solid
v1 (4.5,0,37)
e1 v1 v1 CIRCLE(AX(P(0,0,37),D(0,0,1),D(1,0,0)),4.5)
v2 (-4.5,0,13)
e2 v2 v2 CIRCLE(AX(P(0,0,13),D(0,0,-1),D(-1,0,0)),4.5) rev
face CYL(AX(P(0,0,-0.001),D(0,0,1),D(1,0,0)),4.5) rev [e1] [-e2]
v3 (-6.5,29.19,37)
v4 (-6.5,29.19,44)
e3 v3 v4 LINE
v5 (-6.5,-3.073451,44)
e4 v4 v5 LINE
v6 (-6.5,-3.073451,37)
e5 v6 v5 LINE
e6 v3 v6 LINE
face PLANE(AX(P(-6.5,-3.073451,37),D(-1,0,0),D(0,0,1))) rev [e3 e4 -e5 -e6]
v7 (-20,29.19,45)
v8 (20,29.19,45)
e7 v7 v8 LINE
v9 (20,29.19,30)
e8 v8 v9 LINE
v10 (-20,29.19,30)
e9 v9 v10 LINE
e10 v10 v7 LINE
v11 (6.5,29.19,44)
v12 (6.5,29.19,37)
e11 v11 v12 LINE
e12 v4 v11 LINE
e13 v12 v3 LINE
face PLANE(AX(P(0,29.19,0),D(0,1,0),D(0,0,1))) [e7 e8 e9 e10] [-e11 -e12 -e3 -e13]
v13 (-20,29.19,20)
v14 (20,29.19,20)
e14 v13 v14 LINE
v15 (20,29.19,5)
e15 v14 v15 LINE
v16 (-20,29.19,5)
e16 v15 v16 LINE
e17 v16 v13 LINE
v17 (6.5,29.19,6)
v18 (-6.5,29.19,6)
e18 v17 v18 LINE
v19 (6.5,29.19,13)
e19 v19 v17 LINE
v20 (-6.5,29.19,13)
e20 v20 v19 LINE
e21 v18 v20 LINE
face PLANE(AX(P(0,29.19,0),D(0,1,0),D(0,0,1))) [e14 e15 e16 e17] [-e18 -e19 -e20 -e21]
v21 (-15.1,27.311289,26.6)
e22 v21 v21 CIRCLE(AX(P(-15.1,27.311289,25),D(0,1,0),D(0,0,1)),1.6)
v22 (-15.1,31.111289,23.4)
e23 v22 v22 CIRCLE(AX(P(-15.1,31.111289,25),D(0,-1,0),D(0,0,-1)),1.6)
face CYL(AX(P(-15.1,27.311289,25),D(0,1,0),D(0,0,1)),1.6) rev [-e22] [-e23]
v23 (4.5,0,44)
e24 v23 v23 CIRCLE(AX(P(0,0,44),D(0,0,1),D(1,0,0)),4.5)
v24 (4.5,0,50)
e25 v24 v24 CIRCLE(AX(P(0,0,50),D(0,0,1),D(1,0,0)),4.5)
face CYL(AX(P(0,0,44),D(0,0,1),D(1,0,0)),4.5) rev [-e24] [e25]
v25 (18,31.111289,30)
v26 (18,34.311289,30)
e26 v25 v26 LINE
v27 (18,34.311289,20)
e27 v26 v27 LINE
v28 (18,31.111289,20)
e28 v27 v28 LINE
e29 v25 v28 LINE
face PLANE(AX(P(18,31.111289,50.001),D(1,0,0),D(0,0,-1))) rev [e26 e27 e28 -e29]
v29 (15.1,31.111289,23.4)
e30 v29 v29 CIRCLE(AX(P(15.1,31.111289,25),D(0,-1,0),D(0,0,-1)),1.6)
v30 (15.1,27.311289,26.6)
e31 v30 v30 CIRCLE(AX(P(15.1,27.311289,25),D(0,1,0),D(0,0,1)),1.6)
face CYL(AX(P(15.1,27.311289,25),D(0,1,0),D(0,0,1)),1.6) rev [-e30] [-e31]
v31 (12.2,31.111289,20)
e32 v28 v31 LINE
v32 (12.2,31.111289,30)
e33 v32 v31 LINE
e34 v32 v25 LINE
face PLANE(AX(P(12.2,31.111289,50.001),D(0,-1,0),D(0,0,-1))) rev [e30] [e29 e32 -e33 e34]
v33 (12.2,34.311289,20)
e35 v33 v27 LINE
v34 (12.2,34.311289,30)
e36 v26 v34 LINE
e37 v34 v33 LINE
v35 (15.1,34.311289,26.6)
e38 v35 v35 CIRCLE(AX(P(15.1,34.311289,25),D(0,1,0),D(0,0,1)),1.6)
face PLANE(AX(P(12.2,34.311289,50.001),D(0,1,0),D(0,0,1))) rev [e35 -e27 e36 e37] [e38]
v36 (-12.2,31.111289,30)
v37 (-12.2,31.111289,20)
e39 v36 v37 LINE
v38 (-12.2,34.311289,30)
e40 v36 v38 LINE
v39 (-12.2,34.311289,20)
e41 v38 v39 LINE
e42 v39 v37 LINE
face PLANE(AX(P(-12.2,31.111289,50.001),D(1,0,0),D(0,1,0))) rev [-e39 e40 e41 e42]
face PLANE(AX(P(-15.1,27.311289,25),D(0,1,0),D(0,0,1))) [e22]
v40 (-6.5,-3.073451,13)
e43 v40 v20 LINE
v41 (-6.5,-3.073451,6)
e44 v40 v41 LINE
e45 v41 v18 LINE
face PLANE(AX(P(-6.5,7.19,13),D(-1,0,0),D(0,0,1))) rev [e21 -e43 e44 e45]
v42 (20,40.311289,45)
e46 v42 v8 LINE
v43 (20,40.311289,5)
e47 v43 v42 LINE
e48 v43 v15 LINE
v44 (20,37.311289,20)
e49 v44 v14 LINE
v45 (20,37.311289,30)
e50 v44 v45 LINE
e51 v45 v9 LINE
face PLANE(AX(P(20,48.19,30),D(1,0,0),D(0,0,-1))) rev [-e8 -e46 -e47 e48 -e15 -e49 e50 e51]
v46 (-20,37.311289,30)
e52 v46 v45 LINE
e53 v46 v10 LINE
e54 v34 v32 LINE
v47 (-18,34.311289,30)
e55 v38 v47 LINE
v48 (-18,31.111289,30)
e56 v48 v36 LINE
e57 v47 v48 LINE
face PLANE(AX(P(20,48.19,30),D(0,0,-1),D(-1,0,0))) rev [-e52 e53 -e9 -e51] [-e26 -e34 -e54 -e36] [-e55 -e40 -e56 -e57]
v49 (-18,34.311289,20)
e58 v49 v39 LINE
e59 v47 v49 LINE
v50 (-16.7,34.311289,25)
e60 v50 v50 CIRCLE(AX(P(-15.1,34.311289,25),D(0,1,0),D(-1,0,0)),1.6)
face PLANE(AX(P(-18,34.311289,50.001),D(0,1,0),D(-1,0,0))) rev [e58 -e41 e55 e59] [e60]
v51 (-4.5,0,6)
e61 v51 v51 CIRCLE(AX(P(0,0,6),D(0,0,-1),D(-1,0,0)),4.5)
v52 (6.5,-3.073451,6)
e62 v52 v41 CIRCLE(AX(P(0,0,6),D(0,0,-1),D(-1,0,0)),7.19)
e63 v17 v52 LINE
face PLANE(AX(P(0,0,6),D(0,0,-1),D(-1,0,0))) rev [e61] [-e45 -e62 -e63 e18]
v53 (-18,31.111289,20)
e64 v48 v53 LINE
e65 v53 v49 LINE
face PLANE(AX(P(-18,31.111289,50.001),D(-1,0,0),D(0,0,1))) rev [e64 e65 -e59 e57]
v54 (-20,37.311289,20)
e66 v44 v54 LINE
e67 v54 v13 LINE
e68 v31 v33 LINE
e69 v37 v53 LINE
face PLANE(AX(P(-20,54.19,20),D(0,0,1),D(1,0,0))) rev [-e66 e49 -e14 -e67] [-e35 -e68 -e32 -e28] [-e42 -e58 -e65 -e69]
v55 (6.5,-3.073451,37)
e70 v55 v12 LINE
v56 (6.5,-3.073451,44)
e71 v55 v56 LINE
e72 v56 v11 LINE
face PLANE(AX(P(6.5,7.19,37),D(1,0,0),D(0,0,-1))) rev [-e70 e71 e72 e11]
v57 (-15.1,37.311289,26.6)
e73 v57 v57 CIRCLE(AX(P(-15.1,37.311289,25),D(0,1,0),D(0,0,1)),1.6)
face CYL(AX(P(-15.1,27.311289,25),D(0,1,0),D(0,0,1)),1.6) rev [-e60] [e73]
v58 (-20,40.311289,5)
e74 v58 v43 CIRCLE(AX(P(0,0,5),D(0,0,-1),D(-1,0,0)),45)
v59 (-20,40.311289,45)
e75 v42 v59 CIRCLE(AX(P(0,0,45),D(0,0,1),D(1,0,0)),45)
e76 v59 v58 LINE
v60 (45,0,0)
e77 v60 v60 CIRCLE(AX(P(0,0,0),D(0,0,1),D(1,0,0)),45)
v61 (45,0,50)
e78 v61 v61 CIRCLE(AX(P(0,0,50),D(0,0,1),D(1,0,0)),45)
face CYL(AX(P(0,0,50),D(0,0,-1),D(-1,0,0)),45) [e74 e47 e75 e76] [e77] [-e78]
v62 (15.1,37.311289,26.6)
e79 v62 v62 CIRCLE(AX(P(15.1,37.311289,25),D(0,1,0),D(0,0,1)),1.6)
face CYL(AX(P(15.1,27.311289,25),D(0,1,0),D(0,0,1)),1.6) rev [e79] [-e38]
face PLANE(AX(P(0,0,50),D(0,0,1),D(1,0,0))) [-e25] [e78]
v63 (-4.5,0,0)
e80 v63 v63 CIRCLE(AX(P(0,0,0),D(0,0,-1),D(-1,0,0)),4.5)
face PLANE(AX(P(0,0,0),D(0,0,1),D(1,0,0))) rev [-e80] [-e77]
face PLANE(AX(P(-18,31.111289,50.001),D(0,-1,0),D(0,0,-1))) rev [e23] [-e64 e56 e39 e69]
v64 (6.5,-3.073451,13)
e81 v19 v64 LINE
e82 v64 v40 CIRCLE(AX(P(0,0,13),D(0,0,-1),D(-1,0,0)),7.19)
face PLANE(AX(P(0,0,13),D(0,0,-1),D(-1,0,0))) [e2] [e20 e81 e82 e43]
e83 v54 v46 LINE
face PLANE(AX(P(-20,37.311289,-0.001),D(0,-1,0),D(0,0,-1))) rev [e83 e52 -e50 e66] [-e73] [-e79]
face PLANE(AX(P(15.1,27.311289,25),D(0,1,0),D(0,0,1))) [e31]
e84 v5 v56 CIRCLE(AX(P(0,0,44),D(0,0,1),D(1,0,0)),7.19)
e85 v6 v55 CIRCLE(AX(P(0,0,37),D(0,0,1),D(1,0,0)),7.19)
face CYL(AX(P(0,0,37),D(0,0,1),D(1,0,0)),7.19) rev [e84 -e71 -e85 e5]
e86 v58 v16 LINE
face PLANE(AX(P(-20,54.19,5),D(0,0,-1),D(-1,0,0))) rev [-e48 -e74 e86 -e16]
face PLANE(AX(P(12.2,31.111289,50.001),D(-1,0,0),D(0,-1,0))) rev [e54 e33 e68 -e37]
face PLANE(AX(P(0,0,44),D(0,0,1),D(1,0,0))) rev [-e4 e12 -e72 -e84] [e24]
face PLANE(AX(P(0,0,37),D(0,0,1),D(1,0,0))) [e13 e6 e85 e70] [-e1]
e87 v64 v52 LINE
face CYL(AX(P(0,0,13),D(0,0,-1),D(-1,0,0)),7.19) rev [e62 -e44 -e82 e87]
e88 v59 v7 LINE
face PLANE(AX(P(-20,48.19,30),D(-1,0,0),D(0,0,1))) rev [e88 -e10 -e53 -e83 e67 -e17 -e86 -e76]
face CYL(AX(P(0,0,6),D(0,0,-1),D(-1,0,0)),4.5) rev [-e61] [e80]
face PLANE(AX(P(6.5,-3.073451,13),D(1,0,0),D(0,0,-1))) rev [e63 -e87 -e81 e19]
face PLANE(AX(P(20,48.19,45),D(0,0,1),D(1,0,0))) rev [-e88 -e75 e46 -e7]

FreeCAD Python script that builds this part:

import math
import FreeCAD as App
import Part
import Sketcher
from FreeCAD import Vector
Q = App.Units.Quantity


def add_polygon(sketch, points):
    """Adds a closed chain of lines whose ends are joined by coincident constraints."""
    first, n = sketch.GeometryCount, len(points)
    for a, b in zip(points, points[1:] + points[:1]):
        sketch.addGeometry(Part.LineSegment(App.Vector(*a, 0), App.Vector(*b, 0)), False)
    for i in range(n):
        sketch.addConstraint(Sketcher.Constraint("Coincident", first + i, 2, first + (i + 1) % n, 1))

doc = App.newDocument("Part")
body = doc.addObject("PartDesign::Body", "Body")

sketch1 = body.newObject("Sketcher::SketchObject", "Sketch")
sketch1.AttachmentSupport = (doc.getObject("XY_Plane"), [""])
sketch1.MapMode = "FlatFace"
sketch1.addGeometry(Part.Circle(Vector(0, 0, 0), Vector(0, 0, 1), 45), False)
sketch1.addConstraint([
    Sketcher.Constraint("Coincident", 0, 3, -1, 1),
    Sketcher.Constraint("Diameter", 0, Q("90 mm")),
])
pad1 = body.newObject("PartDesign::Pad", "Pad")
pad1.Profile = sketch1
pad1.Length = 50

sketch2 = body.newObject("Sketcher::SketchObject", "Sketch001")
sketch2.AttachmentSupport = (doc.getObject("XY_Plane"), [""])
sketch2.MapMode = "FlatFace"
sketch2.AttachmentOffset = App.Placement(Vector(0, 0, 50), App.Rotation())
sketch2.addGeometry(Part.Circle(Vector(0, 0, 0), Vector(0, 0, 1), 4.5), False)
sketch2.addConstraint([
    Sketcher.Constraint("Coincident", 0, 3, -1, 1),
    Sketcher.Constraint("Diameter", 0, Q("9 mm")),
])
pocket1 = body.newObject("PartDesign::Pocket", "Pocket")
pocket1.Profile = sketch2
pocket1.Length = 6

sketch3 = body.newObject("Sketcher::SketchObject", "Sketch002")
sketch3.AttachmentSupport = (doc.getObject("XY_Plane"), [""])
sketch3.MapMode = "FlatFace"
sketch3.AttachmentOffset = App.Placement(Vector(0, 0, 44), App.Rotation())
sketch3.addGeometry([
    Part.LineSegment(Vector(-6, 7, 0), Vector(-6, -3, 0)),
    Part.ArcOfCircle(Part.Circle(Vector(0, 0, 0), Vector(0, 0, 1), 7), math.radians(-155), math.radians(-25)),
    Part.LineSegment(Vector(6, -3, 0), Vector(6, 7, 0)),
    Part.LineSegment(Vector(6, 7, 0), Vector(-6, 7, 0)),
], False)
sketch3.addConstraint([
    Sketcher.Constraint("Coincident", 0, 2, 1, 1),
    Sketcher.Constraint("Coincident", 1, 2, 2, 1),
    Sketcher.Constraint("Coincident", 2, 2, 3, 1),
    Sketcher.Constraint("Coincident", 3, 2, 0, 1),
    Sketcher.Constraint("Vertical", 0),
    Sketcher.Constraint("Vertical", 2),
    Sketcher.Constraint("Horizontal", 3),
    Sketcher.Constraint("Coincident", 1, 3, -1, 1),
    Sketcher.Constraint("Horizontal", 0, 2, 1, 2),
    Sketcher.Constraint("DistanceX", 3, 2, 3, 1, Q("13 mm")),
    Sketcher.Constraint("Radius", 1, Q("7.19 mm")),
    Sketcher.Constraint("DistanceY", -1, 1, 2, 2, Q("7.19 mm")),
])
pocket2 = body.newObject("PartDesign::Pocket", "Pocket001")
pocket2.Profile = sketch3
pocket2.Length = 7

sketch4 = body.newObject("Sketcher::SketchObject", "Sketch003")
sketch4.AttachmentSupport = (doc.getObject("XZ_Plane"), [""])
sketch4.MapMode = "FlatFace"
sketch4.AttachmentOffset = App.Placement(Vector(0, 0, -7.19), App.Rotation())
add_polygon(sketch4, [(-20, 45), (-20, 30), (20, 30), (20, 45)])
sketch4.addConstraint([
    Sketcher.Constraint("Vertical", 0),
    Sketcher.Constraint("Horizontal", 1),
    Sketcher.Constraint("Vertical", 2),
    Sketcher.Constraint("Horizontal", 3),
    Sketcher.Constraint("DistanceX", 1, 1, 1, 2, Q("40 mm")),
    Sketcher.Constraint("DistanceY", 0, 2, 0, 1, Q("15 mm")),
    Sketcher.Constraint("DistanceX", 0, 2, -1, 1, Q("20 mm")),
    Sketcher.Constraint("DistanceY", -1, 1, 0, 2, Q("30 mm")),
])
pocket3 = body.newObject("PartDesign::Pocket", "Pocket002")
pocket3.Profile = sketch4
pocket3.Length = 41

sketch5 = body.newObject("Sketcher::SketchObject", "Sketch004")
sketch5.AttachmentSupport = (doc.getObject("XY_Plane"), [""])
sketch5.MapMode = "FlatFace"
sketch5.AttachmentOffset = App.Placement(Vector(0, 0, 6), App.Rotation())
sketch5.addGeometry(Part.Circle(Vector(0, 0, 0), Vector(0, 0, 1), 4.5), False)
sketch5.addConstraint([
    Sketcher.Constraint("Coincident", 0, 3, -1, 1),
    Sketcher.Constraint("Diameter", 0, Q("9 mm")),
])
pocket4 = body.newObject("PartDesign::Pocket", "Pocket003")
pocket4.Profile = sketch5
pocket4.Length = 6

sketch6 = body.newObject("Sketcher::SketchObject", "Sketch005")
sketch6.AttachmentSupport = (doc.getObject("XY_Plane"), [""])
sketch6.MapMode = "FlatFace"
sketch6.AttachmentOffset = App.Placement(Vector(0, 0, 13), App.Rotation())
sketch6.addGeometry([
    Part.LineSegment(Vector(6, 7, 0), Vector(6, -3, 0)),
    Part.ArcOfCircle(Part.Circle(Vector(0, 0, 0), Vector(0, 0, 1), 7), math.radians(-155), math.radians(-25)),
    Part.LineSegment(Vector(-6, -3, 0), Vector(-6, 7, 0)),
    Part.LineSegment(Vector(-6, 7, 0), Vector(6, 7, 0)),
], False)
sketch6.addConstraint([
    Sketcher.Constraint("Coincident", 0, 2, 1, 2),
    Sketcher.Constraint("Coincident", 1, 1, 2, 1),
    Sketcher.Constraint("Coincident", 2, 2, 3, 1),
    Sketcher.Constraint("Coincident", 3, 2, 0, 1),
    Sketcher.Constraint("Vertical", 0),
    Sketcher.Constraint("Vertical", 2),
    Sketcher.Constraint("Horizontal", 3),
    Sketcher.Constraint("Coincident", 1, 3, -1, 1),
    Sketcher.Constraint("Horizontal", 0, 2, 1, 1),
    Sketcher.Constraint("DistanceX", 3, 1, 3, 2, Q("13 mm")),
    Sketcher.Constraint("Radius", 1, Q("7.19 mm")),
    Sketcher.Constraint("DistanceY", -1, 1, 2, 2, Q("7.19 mm")),
])
pocket5 = body.newObject("PartDesign::Pocket", "Pocket004")
pocket5.Profile = sketch6
pocket5.Length = 7

sketch7 = body.newObject("Sketcher::SketchObject", "Sketch006")
sketch7.AttachmentSupport = (doc.getObject("XZ_Plane"), [""])
sketch7.MapMode = "FlatFace"
sketch7.AttachmentOffset = App.Placement(Vector(0, 0, -7.19), App.Rotation())
add_polygon(sketch7, [(-20, 20), (-20, 5), (20, 5), (20, 20)])
sketch7.addConstraint([
    Sketcher.Constraint("Vertical", 0),
    Sketcher.Constraint("Horizontal", 1),
    Sketcher.Constraint("Vertical", 2),
    Sketcher.Constraint("Horizontal", 3),
    Sketcher.Constraint("DistanceX", 1, 1, 1, 2, Q("40 mm")),
    Sketcher.Constraint("DistanceY", 0, 2, 0, 1, Q("15 mm")),
    Sketcher.Constraint("DistanceX", 0, 2, -1, 1, Q("20 mm")),
    Sketcher.Constraint("DistanceY", -1, 1, 0, 2, Q("5 mm")),
])
pocket6 = body.newObject("PartDesign::Pocket", "Pocket005")
pocket6.Profile = sketch7
pocket6.Length = 47

sketch8 = body.newObject("Sketcher::SketchObject", "Sketch007")
sketch8.AttachmentSupport = (doc.getObject("XY_Plane"), [""])
sketch8.MapMode = "FlatFace"
sketch8.AttachmentOffset = App.Placement(Vector(0, 0, 30), App.Rotation())
add_polygon(sketch8, [(-20, 47), (-20, 37), (20, 37), (20, 47)])
sketch8.addConstraint([
    Sketcher.Constraint("Vertical", 0),
    Sketcher.Constraint("Horizontal", 1),
    Sketcher.Constraint("Vertical", 2),
    Sketcher.Constraint("Horizontal", 3),
    Sketcher.Constraint("DistanceX", 1, 1, 1, 2, Q("40 mm")),
    Sketcher.Constraint("DistanceX", 0, 2, -1, 1, Q("20 mm")),
    Sketcher.Constraint("DistanceY", 0, 2, 0, 1, Q("10.058811 mm")),
    Sketcher.Constraint("DistanceY", -1, 1, 2, 2, Q("47.370099 mm")),
])
pocket7 = body.newObject("PartDesign::Pocket", "Pocket006")
pocket7.Profile = sketch8
pocket7.Type = "UpToFirst"

sketch9 = body.newObject("Sketcher::SketchObject", "Sketch008")
sketch9.AttachmentSupport = (doc.getObject("XY_Plane"), [""])
sketch9.MapMode = "FlatFace"
sketch9.AttachmentOffset = App.Placement(Vector(0, 0, 20), App.Rotation())
add_polygon(sketch9, [(18, 34.3), (18, 31.1), (12.2, 31.1), (12.2, 34.3)])
sketch9.addConstraint([
    Sketcher.Constraint("Vertical", 0),
    Sketcher.Constraint("Horizontal", 1),
    Sketcher.Constraint("Vertical", 2),
    Sketcher.Constraint("Horizontal", 3),
    Sketcher.Constraint("DistanceX", 1, 2, 1, 1, Q("5.8 mm")),
    Sketcher.Constraint("DistanceY", 0, 2, 0, 1, Q("3.2 mm")),
    Sketcher.Constraint("DistanceX", -1, 1, 0, 2, Q("18 mm")),
    Sketcher.Constraint("DistanceY", -1, 1, 0, 2, Q("31.111289 mm")),
])
pocket8 = body.newObject("PartDesign::Pocket", "Pocket007")
pocket8.Profile = sketch9
pocket8.Type = "UpToFirst"
pocket8.Reversed = True

sketch10 = body.newObject("Sketcher::SketchObject", "Sketch009")
sketch10.AttachmentSupport = (doc.getObject("XY_Plane"), [""])
sketch10.MapMode = "FlatFace"
sketch10.AttachmentOffset = App.Placement(Vector(0, 0, 20), App.Rotation())
add_polygon(sketch10, [(-12.2, 34.3), (-12.2, 31.1), (-18, 31.1), (-18, 34.3)])
sketch10.addConstraint([
    Sketcher.Constraint("Vertical", 0),
    Sketcher.Constraint("Horizontal", 1),
    Sketcher.Constraint("Vertical", 2),
    Sketcher.Constraint("Horizontal", 3),
    Sketcher.Constraint("DistanceX", 1, 2, 1, 1, Q("5.8 mm")),
    Sketcher.Constraint("DistanceY", 0, 2, 0, 1, Q("3.2 mm")),
    Sketcher.Constraint("DistanceX", 1, 2, -1, 1, Q("18 mm")),
    Sketcher.Constraint("DistanceY", -1, 1, 0, 2, Q("31.111289 mm")),
])
pocket9 = body.newObject("PartDesign::Pocket", "Pocket008")
pocket9.Profile = sketch10
pocket9.Type = "UpToFirst"
pocket9.Reversed = True

sketch11 = body.newObject("Sketcher::SketchObject", "Sketch010")
sketch11.AttachmentSupport = (doc.getObject("XZ_Plane"), [""])
sketch11.MapMode = "FlatFace"
sketch11.AttachmentOffset = App.Placement(Vector(0, 0, -7.19), App.Rotation())
add_polygon(sketch11, [(-20, 5), (-20, 20), (20, 20), (20, 5)])
add_polygon(sketch11, [(6, 13), (-6, 13), (-6, 6), (6, 6)])
add_polygon(sketch11, [(-20, 30), (-20, 45), (20, 45), (20, 30)])
add_polygon(sketch11, [(6, 44), (-6, 44), (-6, 37), (6, 37)])
sketch11.addConstraint([
    Sketcher.Constraint("Vertical", 0),
    Sketcher.Constraint("Horizontal", 1),
    Sketcher.Constraint("Vertical", 2),
    Sketcher.Constraint("Horizontal", 3),
    Sketcher.Constraint("Horizontal", 4),
    Sketcher.Constraint("Vertical", 5),
    Sketcher.Constraint("Horizontal", 6),
    Sketcher.Constraint("Vertical", 7),
    Sketcher.Constraint("Vertical", 8),
    Sketcher.Constraint("Horizontal", 9),
    Sketcher.Constraint("Vertical", 10),
    Sketcher.Constraint("Horizontal", 11),
    Sketcher.Constraint("Horizontal", 12),
    Sketcher.Constraint("Vertical", 13),
    Sketcher.Constraint("Horizontal", 14),
    Sketcher.Constraint("Vertical", 15),
    Sketcher.Constraint("Vertical", 3, 2, 8, 2),
    Sketcher.Constraint("Vertical", 2, 2, 9, 2),
    Sketcher.Constraint("Vertical", 5, 2, 12, 2),
    Sketcher.Constraint("Vertical", 7, 2, 14, 2),
    Sketcher.Constraint("Equal", 2, 8),
    Sketcher.Constraint("Equal", 7, 13),
    Sketcher.Constraint("DistanceX", 1, 1, 1, 2, Q("40 mm")),
    Sketcher.Constraint("DistanceX", 4, 2, 4, 1, Q("13 mm")),
    Sketcher.Constraint("DistanceY", 0, 1, 0, 2, Q("15 mm")),
    Sketcher.Constraint("DistanceY", 5, 2, 5, 1, Q("7 mm")),
    Sketcher.Constraint("DistanceX", 0, 2, -1, 1, Q("20 mm")),
    Sketcher.Constraint("DistanceY", -1, 1, 0, 2, Q("20 mm")),
    Sketcher.Constraint("DistanceY", -1, 1, 4, 2, Q("13 mm")),
    Sketcher.Constraint("DistanceY", -1, 1, 8, 2, Q("45 mm")),
    Sketcher.Constraint("DistanceY", -1, 1, 12, 2, Q("44 mm")),
    Sketcher.Constraint("DistanceX", 4, 2, -1, 1, Q("6.5 mm")),
])
pad2 = body.newObject("PartDesign::Pad", "Pad001")
pad2.Profile = sketch11
pad2.Length = 22
pad2.Reversed = True

sketch12 = body.newObject("Sketcher::SketchObject", "Sketch011")
sketch12.AttachmentSupport = (doc.getObject("XZ_Plane"), [""])
sketch12.MapMode = "FlatFace"
sketch12.AttachmentOffset = App.Placement(Vector(0, 0, -37.311289), App.Rotation())
sketch12.addGeometry([
    Part.Circle(Vector(-15.1, 25, 0), Vector(0, 0, 1), 1.6),
    Part.Circle(Vector(15.1, 25, 0), Vector(0, 0, 1), 1.6),
], False)
sketch12.addConstraint([
    Sketcher.Constraint("Equal", 0, 1),
    Sketcher.Constraint("Symmetric", 0, 3, 1, 3, -2),
    Sketcher.Constraint("Diameter", 0, Q("3.2 mm")),
    Sketcher.Constraint("DistanceY", -1, 1, 0, 3, Q("25 mm")),
    Sketcher.Constraint("DistanceX", 0, 3, -1, 1, Q("15.1 mm")),
])
pocket10 = body.newObject("PartDesign::Pocket", "Pocket009")
pocket10.Profile = sketch12
pocket10.Length = 10
pocket10.Reversed = True

sketch13 = body.newObject("Sketcher::SketchObject", "Sketch012")
sketch13.AttachmentSupport = (doc.getObject("XY_Plane"), [""])
sketch13.MapMode = "FlatFace"
sketch13.AttachmentOffset = App.Placement(Vector(0, 0, 37), App.Rotation())
sketch13.addGeometry(Part.Circle(Vector(0, 0, 0), Vector(0, 0, 1), 4.5), False)
sketch13.addConstraint([
    Sketcher.Constraint("Coincident", 0, 3, -1, 1),
    Sketcher.Constraint("Diameter", 0, Q("9 mm")),
])
pocket11 = body.newObject("PartDesign::Pocket", "Pocket010")
pocket11.Profile = sketch13
pocket11.Type = "UpToFirst"

doc.recompute()
